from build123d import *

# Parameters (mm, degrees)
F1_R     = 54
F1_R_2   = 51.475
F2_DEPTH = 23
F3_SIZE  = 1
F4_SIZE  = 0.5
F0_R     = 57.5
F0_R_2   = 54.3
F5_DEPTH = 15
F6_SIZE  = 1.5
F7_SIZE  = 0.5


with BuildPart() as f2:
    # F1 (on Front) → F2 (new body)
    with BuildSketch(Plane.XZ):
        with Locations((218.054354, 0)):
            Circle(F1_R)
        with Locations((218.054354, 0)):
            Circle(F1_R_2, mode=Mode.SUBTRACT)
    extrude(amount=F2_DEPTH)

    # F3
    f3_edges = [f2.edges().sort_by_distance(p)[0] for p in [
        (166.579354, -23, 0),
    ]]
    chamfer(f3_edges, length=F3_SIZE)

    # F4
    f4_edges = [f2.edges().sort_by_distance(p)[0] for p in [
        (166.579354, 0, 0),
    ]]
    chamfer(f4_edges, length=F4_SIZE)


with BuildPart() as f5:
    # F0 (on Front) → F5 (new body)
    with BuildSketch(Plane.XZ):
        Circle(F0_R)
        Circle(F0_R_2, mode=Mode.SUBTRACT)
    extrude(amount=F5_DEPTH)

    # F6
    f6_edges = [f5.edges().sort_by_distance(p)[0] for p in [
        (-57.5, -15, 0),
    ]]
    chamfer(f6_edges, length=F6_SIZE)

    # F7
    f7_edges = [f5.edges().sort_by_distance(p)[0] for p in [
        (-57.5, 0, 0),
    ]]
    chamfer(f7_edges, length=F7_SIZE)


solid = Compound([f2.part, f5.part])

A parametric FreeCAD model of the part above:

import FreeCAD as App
import Part
import Sketcher

V = App.Vector


def edges_at(feature, points):
    """Names of the edges that pass closest to the given points."""
    edges = feature.Shape.Edges
    near = lambda p: min(range(len(edges)), key=lambda i: edges[i].distToShape(Part.Vertex(*p))[0])
    return sorted({f"Edge{near(p) + 1}" for p in points})

doc = App.newDocument("Part")
body = doc.addObject("PartDesign::Body", "Body")

# Sketch on XZ plane
sketch1 = body.newObject("Sketcher::SketchObject", "Sketch")
sketch1.AttachmentSupport = (doc.getObject("XZ_Plane"), [""])
sketch1.MapMode = "FlatFace"
sketch1.addGeometry([
    Part.Circle(V(218, 0, 0), V(0, 0, 1), 54),
    Part.Circle(V(218, 0, 0), V(0, 0, 1), 51),
], False)
sketch1.addConstraint([
    Sketcher.Constraint("Coincident", 1, 3, 0, 3),
    Sketcher.Constraint("PointOnObject", 0, 3, -1),
    Sketcher.Constraint("Diameter", 0, 108.0),
    Sketcher.Constraint("Diameter", 1, 102.95),
    Sketcher.Constraint("DistanceX", -1, 1, 0, 3, 218.054354),
])
pad1 = body.newObject("PartDesign::Pad", "Pad")
pad1.Profile = sketch1
pad1.Length = 23
doc.recompute()

chamfer = body.newObject("PartDesign::Chamfer", "Chamfer")
chamfer.Base = (pad1, edges_at(pad1, [(166.579, -23, 0)]))
chamfer.Size = 1
doc.recompute()

chamfer2 = body.newObject("PartDesign::Chamfer", "Chamfer001")
chamfer2.Base = (chamfer, edges_at(chamfer, [(166.579, 0, 0)]))
chamfer2.Size = 0.5
body2 = doc.addObject("PartDesign::Body", "Body001")

# Sketch on XZ plane
sketch2 = body2.newObject("Sketcher::SketchObject", "Sketch001")
sketch2.AttachmentSupport = (doc.getObject("XZ_Plane001"), [""])
sketch2.MapMode = "FlatFace"
sketch2.addGeometry([
    Part.Circle(V(0, 0, 0), V(0, 0, 1), 58),
    Part.Circle(V(0, 0, 0), V(0, 0, 1), 54),
], False)
sketch2.addConstraint([
    Sketcher.Constraint("Coincident", 0, 3, -1, 1),
    Sketcher.Constraint("Coincident", 1, 3, -1, 1),
    Sketcher.Constraint("Diameter", 0, 115.0),
    Sketcher.Constraint("Diameter", 1, 108.6),
])
pad2 = body2.newObject("PartDesign::Pad", "Pad001")
pad2.Profile = sketch2
pad2.Length = 15
doc.recompute()

chamfer3 = body2.newObject("PartDesign::Chamfer", "Chamfer002")
chamfer3.Base = (pad2, edges_at(pad2, [(-57.5, -15, 0)]))
chamfer3.Size = 1.5
doc.recompute()

chamfer4 = body2.newObject("PartDesign::Chamfer", "Chamfer003")
chamfer4.Base = (chamfer3, edges_at(chamfer3, [(-57.5, 0, 0)]))
chamfer4.Size = 0.5

doc.recompute()
